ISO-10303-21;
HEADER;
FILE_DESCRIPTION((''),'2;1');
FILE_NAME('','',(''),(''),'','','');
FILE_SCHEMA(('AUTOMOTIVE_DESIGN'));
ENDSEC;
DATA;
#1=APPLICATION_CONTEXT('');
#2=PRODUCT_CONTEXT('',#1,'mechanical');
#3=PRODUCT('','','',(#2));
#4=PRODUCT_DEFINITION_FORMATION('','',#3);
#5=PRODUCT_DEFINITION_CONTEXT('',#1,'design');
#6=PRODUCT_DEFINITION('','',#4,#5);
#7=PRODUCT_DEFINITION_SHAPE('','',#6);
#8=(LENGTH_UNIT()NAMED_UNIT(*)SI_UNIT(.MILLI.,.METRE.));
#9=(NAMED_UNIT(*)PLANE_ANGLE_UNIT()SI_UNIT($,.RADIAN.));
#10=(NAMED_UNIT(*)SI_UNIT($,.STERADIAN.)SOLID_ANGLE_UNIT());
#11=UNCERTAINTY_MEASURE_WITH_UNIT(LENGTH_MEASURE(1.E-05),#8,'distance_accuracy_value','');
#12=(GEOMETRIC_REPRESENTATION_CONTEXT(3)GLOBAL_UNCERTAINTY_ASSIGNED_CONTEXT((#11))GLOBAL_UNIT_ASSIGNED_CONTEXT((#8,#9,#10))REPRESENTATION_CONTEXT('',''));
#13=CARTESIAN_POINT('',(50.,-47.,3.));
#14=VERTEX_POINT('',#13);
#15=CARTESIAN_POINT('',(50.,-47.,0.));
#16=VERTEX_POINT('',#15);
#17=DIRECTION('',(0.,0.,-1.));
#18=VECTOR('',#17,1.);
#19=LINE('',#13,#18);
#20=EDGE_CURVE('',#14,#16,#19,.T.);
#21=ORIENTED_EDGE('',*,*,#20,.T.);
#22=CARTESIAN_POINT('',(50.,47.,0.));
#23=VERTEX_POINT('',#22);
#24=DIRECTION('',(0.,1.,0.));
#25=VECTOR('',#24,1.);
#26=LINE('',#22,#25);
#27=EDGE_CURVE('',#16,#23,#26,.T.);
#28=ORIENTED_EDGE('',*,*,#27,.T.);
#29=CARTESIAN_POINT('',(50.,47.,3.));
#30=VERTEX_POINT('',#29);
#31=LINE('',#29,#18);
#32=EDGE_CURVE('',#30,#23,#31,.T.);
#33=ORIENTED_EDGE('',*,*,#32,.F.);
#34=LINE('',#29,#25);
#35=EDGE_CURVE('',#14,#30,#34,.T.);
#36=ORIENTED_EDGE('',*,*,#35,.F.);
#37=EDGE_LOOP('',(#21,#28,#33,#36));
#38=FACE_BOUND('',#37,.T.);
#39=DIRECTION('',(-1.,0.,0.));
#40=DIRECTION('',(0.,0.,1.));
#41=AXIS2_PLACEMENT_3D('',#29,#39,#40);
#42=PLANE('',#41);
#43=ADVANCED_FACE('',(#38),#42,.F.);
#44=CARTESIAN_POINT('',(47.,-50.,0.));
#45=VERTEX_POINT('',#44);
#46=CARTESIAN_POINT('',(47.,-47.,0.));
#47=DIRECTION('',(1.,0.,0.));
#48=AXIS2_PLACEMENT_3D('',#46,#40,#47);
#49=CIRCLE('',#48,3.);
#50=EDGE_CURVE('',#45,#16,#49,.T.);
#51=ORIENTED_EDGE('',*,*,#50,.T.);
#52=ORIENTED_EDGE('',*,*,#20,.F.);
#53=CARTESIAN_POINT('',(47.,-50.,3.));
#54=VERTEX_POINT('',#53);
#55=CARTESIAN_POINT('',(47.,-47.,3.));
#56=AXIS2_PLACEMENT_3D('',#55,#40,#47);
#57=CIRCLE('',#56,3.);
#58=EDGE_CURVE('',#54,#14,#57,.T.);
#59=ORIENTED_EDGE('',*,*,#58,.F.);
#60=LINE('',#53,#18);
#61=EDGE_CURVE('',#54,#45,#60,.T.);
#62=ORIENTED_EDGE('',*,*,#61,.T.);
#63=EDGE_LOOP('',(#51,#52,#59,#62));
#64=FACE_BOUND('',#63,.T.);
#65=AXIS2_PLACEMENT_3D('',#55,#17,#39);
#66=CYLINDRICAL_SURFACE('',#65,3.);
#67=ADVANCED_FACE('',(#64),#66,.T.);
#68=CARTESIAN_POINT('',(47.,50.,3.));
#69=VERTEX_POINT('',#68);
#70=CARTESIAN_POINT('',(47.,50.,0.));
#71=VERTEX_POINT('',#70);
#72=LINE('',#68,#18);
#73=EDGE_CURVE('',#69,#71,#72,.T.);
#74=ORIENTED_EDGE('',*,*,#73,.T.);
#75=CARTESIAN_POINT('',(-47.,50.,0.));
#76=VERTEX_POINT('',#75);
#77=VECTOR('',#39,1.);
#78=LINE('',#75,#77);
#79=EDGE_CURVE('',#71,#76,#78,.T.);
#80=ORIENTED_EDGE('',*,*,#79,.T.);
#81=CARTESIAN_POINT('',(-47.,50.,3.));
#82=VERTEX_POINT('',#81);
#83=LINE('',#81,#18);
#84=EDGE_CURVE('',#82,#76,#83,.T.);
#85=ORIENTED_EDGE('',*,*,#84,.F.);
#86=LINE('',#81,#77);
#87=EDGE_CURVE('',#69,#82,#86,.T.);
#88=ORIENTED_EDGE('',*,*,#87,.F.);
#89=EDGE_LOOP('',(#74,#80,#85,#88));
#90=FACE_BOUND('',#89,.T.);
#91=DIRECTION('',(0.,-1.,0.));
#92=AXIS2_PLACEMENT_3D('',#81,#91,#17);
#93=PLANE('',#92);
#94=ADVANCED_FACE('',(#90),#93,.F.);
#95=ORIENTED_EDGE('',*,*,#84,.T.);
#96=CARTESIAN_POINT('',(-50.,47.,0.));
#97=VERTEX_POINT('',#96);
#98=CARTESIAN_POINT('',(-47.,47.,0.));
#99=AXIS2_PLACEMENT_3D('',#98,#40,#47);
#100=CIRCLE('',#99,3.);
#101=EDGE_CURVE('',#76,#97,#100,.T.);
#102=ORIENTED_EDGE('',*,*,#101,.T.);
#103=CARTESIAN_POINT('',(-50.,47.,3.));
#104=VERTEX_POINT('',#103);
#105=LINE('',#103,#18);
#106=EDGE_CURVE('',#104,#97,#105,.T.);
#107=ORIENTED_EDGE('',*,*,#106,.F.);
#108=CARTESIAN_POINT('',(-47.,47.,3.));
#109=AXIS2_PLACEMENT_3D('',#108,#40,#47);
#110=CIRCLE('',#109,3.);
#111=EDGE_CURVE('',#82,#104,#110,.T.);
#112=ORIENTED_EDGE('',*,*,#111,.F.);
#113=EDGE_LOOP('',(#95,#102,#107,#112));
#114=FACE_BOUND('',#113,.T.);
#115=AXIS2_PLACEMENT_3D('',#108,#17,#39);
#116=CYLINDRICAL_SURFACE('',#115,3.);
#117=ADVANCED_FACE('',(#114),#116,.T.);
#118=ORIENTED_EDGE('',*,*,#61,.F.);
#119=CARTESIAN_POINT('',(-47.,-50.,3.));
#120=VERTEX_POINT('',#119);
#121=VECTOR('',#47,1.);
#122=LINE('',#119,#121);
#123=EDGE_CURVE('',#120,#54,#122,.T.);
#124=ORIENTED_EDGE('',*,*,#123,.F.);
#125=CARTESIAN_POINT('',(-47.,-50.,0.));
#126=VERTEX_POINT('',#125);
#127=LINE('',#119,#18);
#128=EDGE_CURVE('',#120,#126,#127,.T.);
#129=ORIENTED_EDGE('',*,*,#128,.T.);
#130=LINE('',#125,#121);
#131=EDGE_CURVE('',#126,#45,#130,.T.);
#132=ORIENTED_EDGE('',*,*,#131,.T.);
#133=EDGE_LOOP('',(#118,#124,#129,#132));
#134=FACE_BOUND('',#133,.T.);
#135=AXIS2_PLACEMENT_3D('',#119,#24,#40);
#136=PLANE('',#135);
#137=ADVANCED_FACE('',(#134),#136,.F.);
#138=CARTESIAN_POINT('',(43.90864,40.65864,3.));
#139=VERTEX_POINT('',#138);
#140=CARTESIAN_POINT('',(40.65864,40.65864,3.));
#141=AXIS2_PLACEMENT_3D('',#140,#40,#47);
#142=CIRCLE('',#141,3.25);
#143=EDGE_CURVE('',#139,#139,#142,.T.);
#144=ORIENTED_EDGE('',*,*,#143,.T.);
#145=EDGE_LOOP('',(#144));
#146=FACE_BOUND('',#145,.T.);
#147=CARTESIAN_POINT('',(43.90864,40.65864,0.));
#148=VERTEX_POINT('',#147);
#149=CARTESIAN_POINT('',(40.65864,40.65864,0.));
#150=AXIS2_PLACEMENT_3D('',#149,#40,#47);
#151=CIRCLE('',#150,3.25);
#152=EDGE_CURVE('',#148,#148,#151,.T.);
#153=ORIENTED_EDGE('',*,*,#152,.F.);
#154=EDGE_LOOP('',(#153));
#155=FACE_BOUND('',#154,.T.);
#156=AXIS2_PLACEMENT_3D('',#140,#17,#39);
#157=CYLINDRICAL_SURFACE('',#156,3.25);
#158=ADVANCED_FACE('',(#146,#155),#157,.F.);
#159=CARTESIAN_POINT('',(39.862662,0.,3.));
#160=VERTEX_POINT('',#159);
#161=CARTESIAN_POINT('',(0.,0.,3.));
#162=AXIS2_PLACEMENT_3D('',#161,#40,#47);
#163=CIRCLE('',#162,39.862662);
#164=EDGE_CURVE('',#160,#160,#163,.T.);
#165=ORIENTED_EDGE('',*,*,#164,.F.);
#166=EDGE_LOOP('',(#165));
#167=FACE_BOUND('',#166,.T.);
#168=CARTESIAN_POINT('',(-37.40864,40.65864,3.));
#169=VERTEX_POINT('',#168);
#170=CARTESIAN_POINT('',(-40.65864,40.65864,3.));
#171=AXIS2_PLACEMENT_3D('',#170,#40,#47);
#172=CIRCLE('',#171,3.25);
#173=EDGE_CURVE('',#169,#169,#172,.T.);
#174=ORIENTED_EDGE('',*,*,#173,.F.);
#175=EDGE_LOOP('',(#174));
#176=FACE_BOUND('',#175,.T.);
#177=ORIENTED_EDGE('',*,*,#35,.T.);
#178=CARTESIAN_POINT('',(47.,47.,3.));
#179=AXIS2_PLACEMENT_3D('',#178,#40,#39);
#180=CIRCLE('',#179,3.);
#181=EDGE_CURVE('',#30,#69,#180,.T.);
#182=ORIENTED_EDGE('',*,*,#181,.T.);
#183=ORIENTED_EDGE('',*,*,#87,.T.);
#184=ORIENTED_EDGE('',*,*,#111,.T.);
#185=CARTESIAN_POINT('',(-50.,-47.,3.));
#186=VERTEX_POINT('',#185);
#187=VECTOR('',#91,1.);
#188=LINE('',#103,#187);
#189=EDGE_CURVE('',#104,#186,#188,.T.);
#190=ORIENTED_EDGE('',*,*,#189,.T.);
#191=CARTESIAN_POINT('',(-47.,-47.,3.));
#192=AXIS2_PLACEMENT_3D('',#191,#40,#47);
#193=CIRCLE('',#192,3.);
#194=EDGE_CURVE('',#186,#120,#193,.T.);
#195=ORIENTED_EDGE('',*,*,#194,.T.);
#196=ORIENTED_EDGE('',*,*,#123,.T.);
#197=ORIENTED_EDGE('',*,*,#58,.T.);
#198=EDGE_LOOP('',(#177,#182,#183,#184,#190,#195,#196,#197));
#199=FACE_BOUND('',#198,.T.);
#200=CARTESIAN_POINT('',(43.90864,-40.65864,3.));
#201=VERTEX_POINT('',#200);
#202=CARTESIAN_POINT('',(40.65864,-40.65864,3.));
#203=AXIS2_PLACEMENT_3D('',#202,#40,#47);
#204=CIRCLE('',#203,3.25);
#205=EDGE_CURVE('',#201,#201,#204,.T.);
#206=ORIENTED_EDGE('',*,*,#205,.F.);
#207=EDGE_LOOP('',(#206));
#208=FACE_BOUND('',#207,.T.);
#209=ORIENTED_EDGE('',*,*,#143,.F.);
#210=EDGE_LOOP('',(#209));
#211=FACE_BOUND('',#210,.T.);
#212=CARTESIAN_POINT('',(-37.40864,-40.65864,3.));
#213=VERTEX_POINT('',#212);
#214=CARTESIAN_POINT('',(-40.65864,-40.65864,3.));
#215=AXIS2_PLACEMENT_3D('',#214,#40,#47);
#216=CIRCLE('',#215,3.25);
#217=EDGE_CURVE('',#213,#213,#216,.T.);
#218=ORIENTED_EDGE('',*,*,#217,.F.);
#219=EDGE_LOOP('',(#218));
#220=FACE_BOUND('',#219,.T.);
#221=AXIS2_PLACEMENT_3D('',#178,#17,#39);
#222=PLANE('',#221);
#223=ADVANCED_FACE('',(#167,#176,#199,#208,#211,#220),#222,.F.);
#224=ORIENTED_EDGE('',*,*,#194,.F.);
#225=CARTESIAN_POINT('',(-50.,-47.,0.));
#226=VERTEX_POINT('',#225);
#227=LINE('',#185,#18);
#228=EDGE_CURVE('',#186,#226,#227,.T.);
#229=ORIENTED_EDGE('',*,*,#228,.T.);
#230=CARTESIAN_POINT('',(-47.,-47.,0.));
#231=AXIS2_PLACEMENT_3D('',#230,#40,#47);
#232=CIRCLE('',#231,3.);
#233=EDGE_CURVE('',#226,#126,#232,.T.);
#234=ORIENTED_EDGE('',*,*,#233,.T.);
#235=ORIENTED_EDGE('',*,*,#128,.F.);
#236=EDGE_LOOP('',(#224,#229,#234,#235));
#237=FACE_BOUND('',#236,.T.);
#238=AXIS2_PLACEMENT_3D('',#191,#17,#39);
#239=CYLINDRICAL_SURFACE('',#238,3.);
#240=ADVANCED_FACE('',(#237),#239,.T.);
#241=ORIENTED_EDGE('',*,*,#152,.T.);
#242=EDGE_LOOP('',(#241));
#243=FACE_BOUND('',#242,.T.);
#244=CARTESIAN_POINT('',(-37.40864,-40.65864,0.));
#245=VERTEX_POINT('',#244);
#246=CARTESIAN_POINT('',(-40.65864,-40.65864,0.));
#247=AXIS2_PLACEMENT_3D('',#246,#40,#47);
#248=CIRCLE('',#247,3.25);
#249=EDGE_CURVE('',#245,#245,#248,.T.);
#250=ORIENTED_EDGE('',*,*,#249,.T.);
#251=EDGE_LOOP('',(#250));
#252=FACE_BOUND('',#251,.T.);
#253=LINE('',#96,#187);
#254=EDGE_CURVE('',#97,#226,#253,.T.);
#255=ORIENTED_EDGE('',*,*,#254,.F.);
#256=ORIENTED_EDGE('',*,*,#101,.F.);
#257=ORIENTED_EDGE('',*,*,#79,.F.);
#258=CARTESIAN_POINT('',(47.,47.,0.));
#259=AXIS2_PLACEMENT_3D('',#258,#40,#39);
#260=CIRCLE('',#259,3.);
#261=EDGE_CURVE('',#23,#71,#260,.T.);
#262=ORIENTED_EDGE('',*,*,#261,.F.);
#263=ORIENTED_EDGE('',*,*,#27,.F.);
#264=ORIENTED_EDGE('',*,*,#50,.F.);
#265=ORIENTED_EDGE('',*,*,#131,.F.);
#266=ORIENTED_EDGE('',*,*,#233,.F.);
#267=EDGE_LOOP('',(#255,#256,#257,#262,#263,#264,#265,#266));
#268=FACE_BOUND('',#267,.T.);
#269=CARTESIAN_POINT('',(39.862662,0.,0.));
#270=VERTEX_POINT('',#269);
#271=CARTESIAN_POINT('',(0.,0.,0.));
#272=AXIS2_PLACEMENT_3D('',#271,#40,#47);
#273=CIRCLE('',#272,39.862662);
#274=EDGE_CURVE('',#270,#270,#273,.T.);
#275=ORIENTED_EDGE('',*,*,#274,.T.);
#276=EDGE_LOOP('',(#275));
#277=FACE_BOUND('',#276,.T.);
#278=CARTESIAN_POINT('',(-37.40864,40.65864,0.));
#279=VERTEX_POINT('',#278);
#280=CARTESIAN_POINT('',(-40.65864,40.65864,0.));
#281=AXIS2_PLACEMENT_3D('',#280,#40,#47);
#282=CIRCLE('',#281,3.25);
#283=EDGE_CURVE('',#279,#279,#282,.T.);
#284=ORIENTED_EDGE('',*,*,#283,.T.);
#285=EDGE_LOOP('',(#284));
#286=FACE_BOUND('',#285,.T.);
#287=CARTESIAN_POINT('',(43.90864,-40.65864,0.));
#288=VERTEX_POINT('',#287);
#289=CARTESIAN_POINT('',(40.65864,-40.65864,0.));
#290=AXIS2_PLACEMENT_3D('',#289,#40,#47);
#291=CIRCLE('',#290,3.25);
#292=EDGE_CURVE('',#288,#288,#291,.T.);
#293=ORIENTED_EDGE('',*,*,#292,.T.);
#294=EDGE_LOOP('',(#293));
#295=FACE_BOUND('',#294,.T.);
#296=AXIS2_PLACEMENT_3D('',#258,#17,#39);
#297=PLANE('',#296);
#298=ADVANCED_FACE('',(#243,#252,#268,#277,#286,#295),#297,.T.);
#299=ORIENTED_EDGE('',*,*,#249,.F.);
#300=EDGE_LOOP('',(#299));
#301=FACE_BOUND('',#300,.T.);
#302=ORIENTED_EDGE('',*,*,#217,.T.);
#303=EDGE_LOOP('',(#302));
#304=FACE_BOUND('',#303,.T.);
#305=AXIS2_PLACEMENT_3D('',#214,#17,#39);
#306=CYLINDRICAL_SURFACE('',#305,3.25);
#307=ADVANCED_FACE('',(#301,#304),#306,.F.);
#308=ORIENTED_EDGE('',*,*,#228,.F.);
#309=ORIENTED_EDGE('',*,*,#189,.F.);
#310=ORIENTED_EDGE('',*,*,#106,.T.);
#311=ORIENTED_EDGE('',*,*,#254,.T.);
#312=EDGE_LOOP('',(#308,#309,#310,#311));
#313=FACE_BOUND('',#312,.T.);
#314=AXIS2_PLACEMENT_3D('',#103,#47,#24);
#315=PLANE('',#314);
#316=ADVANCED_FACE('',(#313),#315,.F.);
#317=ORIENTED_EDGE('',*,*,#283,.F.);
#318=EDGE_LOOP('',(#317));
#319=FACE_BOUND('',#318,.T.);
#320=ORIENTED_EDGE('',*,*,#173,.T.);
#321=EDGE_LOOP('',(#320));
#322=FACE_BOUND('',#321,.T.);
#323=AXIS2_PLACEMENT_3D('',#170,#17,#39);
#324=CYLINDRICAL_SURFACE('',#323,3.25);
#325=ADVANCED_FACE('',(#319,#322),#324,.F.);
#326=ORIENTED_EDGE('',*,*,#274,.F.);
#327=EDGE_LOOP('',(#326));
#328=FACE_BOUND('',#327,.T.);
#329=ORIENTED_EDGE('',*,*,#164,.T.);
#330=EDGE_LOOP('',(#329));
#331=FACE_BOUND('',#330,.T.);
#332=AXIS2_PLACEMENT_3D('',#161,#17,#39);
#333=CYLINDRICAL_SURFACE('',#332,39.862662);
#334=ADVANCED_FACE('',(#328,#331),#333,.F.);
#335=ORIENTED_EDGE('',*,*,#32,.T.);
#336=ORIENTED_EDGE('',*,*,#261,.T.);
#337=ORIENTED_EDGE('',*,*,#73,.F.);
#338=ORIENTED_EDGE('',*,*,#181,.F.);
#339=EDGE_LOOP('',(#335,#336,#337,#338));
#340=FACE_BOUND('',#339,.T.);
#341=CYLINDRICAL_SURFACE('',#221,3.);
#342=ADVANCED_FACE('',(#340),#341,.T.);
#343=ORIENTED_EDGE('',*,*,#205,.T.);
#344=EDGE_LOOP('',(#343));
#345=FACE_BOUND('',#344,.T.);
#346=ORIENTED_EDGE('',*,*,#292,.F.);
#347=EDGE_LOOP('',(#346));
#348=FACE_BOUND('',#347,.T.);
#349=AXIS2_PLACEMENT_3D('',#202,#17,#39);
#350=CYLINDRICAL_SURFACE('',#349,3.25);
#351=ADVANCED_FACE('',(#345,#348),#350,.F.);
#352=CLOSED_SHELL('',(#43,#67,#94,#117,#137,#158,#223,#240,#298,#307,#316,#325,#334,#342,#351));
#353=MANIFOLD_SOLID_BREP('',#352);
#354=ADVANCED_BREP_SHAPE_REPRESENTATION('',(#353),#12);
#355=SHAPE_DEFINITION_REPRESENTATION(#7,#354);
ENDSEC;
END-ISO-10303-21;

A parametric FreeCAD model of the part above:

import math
import FreeCAD as App
import Part
import Sketcher

V = App.Vector

doc = App.newDocument("Part")
body = doc.addObject("PartDesign::Body", "Body")

# Sketch on XY plane
sketch1 = doc.addObject("Sketcher::SketchObject", "Sketch")
body.addObject(sketch1)
sketch1.AttachmentSupport = (doc.XY_Plane, [""])
sketch1.MapMode = "FlatFace"
sketch1.addGeometry([
    Part.LineSegment(V(47, 50, 0), V(-47, 50, 0)),  # 0
    Part.ArcOfCircle(Part.Circle(V(-47, 47, 0), V(0, 0, 1), 3), math.radians(90), math.radians(180)),  # 1
    Part.LineSegment(V(-50, 47, 0), V(-50, -47, 0)),  # 2
    Part.ArcOfCircle(Part.Circle(V(-47, -47, 0), V(0, 0, 1), 3), math.radians(180), math.radians(270)),  # 3
    Part.LineSegment(V(-47, -50, 0), V(47, -50, 0)),  # 4
    Part.ArcOfCircle(Part.Circle(V(47, -47, 0), V(0, 0, 1), 3), math.radians(-90), math.radians(0)),  # 5
    Part.LineSegment(V(50, -47, 0), V(50, 47, 0)),  # 6
    Part.ArcOfCircle(Part.Circle(V(47, 47, 0), V(0, 0, 1), 3), math.radians(0), math.radians(90)),  # 7
    Part.Circle(V(40.7, -40.7, 0), V(0, 0, 1), 3.2),  # 8
    Part.Circle(V(-40.7, -40.7, 0), V(0, 0, 1), 3.2),  # 9
    Part.Circle(V(40.7, 40.7, 0), V(0, 0, 1), 3.2),  # 10
    Part.Circle(V(0, 0, 0), V(0, 0, 1), 39.9),  # 11
    Part.Circle(V(-40.7, 40.7, 0), V(0, 0, 1), 3.2),  # 12
], False)
sketch1.addConstraint([
    Sketcher.Constraint("Tangent", 0, 2, 1, 1),
    Sketcher.Constraint("Tangent", 1, 2, 2, 1),
    Sketcher.Constraint("Tangent", 2, 2, 3, 1),
    Sketcher.Constraint("Tangent", 3, 2, 4, 1),
    Sketcher.Constraint("Tangent", 4, 2, 5, 1),
    Sketcher.Constraint("Tangent", 5, 2, 6, 1),
    Sketcher.Constraint("Tangent", 6, 2, 7, 1),
    Sketcher.Constraint("Tangent", 7, 2, 0, 1),
    Sketcher.Constraint("Horizontal", 0),
    Sketcher.Constraint("Vertical", 2),
    Sketcher.Constraint("Horizontal", 4),
    Sketcher.Constraint("Vertical", 6),
    Sketcher.Constraint("Coincident", 11, 3, -1, 1),
    Sketcher.Constraint("Equal", 1, 3),
    Sketcher.Constraint("Equal", 3, 5),
    Sketcher.Constraint("Equal", 5, 7),
    Sketcher.Constraint("Equal", 8, 9),
    Sketcher.Constraint("Equal", 9, 10),
    Sketcher.Constraint("Equal", 10, 12),
    Sketcher.Constraint("Symmetric", 1, 3, 5, 3, -1, 1),
    Sketcher.Constraint("Symmetric", 9, 3, 10, 3, -1, 1),
    Sketcher.Constraint("Symmetric", 8, 3, 12, 3, -1, 1),
    Sketcher.Constraint("Symmetric", 8, 3, 9, 3, -2),
    Sketcher.Constraint("Equal", 4, 2),
    Sketcher.Constraint("Radius", 1, 3.0),
    Sketcher.Constraint("Diameter", 8, 6.5),
    Sketcher.Constraint("DistanceX", 0, 2, 0, 1, 94.0),
    Sketcher.Constraint("Diameter", 11, 79.725325),
    Sketcher.Constraint("DistanceX", -1, 1, 8, 3, 40.65864),
    Sketcher.Constraint("DistanceY", 8, 3, -1, 1, 40.65864),
])
pad1 = doc.addObject("PartDesign::Pad", "Pad")
body.addObject(pad1)
pad1.Profile = sketch1
pad1.Length = 3

doc.recompute()
